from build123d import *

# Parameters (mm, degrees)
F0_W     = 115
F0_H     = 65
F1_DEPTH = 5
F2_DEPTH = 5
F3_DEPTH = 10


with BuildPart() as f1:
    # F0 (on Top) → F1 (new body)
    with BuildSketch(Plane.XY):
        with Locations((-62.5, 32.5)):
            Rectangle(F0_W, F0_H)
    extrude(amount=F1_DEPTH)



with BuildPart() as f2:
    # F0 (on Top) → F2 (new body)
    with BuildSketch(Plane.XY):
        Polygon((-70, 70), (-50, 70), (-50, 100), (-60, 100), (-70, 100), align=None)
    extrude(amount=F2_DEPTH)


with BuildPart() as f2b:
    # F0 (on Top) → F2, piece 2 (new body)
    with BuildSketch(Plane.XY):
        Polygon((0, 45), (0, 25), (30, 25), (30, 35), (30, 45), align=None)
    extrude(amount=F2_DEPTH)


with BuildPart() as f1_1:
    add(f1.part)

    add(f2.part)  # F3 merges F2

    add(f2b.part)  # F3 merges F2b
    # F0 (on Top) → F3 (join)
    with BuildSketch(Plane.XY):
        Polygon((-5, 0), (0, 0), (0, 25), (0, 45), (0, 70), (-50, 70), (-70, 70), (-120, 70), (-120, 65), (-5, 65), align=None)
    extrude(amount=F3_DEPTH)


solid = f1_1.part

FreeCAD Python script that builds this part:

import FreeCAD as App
import Part
import Sketcher

V = App.Vector


def add_polygon(sketch, points):
    """Adds a closed chain of lines whose ends are joined by coincident constraints."""
    first, n = sketch.GeometryCount, len(points)
    for a, b in zip(points, points[1:] + points[:1]):
        sketch.addGeometry(Part.LineSegment(App.Vector(*a, 0), App.Vector(*b, 0)), False)
    for i in range(n):
        sketch.addConstraint(Sketcher.Constraint("Coincident", first + i, 2, first + (i + 1) % n, 1))

doc = App.newDocument("Part")
body = doc.addObject("PartDesign::Body", "Body")

# Sketch on XY plane
sketch1 = body.newObject("Sketcher::SketchObject", "Sketch")
sketch1.AttachmentSupport = (doc.getObject("XY_Plane"), [""])
sketch1.MapMode = "FlatFace"
add_polygon(sketch1, [(-120, 65), (-120, 0), (-5, 0), (-5, 65)])  # lines 0-3
sketch1.addConstraint([
    Sketcher.Constraint("Vertical", 0),
    Sketcher.Constraint("Horizontal", 1),
    Sketcher.Constraint("Vertical", 2),
    Sketcher.Constraint("Horizontal", 3),
    Sketcher.Constraint("PointOnObject", 0, 2, -1),
    Sketcher.Constraint("DistanceX", 1, 1, 1, 2, 115.0),
    Sketcher.Constraint("DistanceY", 0, 2, 0, 1, 65.0),
    Sketcher.Constraint("DistanceX", 0, 2, -1, 1, 120.0),
])
pad1 = body.newObject("PartDesign::Pad", "Pad")
pad1.Profile = sketch1
pad1.Length = 5
body2 = doc.addObject("PartDesign::Body", "Body001")

# Sketch on XY plane
sketch2 = body2.newObject("Sketcher::SketchObject", "Sketch001")
sketch2.AttachmentSupport = (doc.getObject("XY_Plane001"), [""])
sketch2.MapMode = "FlatFace"
add_polygon(sketch2, [(-70, 70), (-50, 70), (-50, 100), (-70, 100)])  # lines 0-3
sketch2.addConstraint([
    Sketcher.Constraint("Horizontal", 0),
    Sketcher.Constraint("Vertical", 1),
    Sketcher.Constraint("Horizontal", 2),
    Sketcher.Constraint("Vertical", 3),
    Sketcher.Constraint("DistanceX", 0, 1, 0, 2, 20.0),
    Sketcher.Constraint("DistanceY", 1, 1, 1, 2, 30.0),
    Sketcher.Constraint("DistanceX", 0, 2, -1, 1, 50.0),
    Sketcher.Constraint("DistanceY", -1, 1, 0, 2, 70.0),
])
pad2 = body2.newObject("PartDesign::Pad", "Pad001")
pad2.Profile = sketch2
pad2.Length = 5
body3 = doc.addObject("PartDesign::Body", "Body002")

# Sketch on XY plane
sketch3 = body3.newObject("Sketcher::SketchObject", "Sketch002")
sketch3.AttachmentSupport = (doc.getObject("XY_Plane002"), [""])
sketch3.MapMode = "FlatFace"
add_polygon(sketch3, [(0, 45), (0, 25), (30, 25), (30, 45)])  # lines 0-3
sketch3.addConstraint([
    Sketcher.Constraint("Vertical", 0),
    Sketcher.Constraint("Horizontal", 1),
    Sketcher.Constraint("Vertical", 2),
    Sketcher.Constraint("Horizontal", 3),
    Sketcher.Constraint("PointOnObject", 0, 2, -2),
    Sketcher.Constraint("DistanceX", 1, 1, 1, 2, 30.0),
    Sketcher.Constraint("DistanceY", 0, 2, 0, 1, 20.0),
    Sketcher.Constraint("DistanceY", -1, 1, 0, 2, 25.0),
])
pad3 = body3.newObject("PartDesign::Pad", "Pad002")
pad3.Profile = sketch3
pad3.Length = 5
body.AllowCompound = True
doc.recompute()

boolean = body.newObject("PartDesign::Boolean", "Boolean")
boolean.Type = "Fuse"
boolean.addObjects([body2])
doc.recompute()

boolean2 = body.newObject("PartDesign::Boolean", "Boolean001")
boolean2.Type = "Fuse"
boolean2.addObjects([body3])

# Sketch on XY plane
sketch4 = body.newObject("Sketcher::SketchObject", "Sketch003")
sketch4.AttachmentSupport = (doc.getObject("XY_Plane"), [""])
sketch4.MapMode = "FlatFace"
add_polygon(sketch4, [(-5, 0), (0, 0), (0, 70), (-120, 70), (-120, 65), (-5, 65)])  # lines 0-5
sketch4.addConstraint([
    Sketcher.Constraint("Horizontal", 0),
    Sketcher.Constraint("Vertical", 1),
    Sketcher.Constraint("Horizontal", 2),
    Sketcher.Constraint("Vertical", 3),
    Sketcher.Constraint("Horizontal", 4),
    Sketcher.Constraint("Vertical", 5),
    Sketcher.Constraint("Coincident", 0, 2, -1, 1),
    Sketcher.Constraint("Equal", 0, 3),
    Sketcher.Constraint("DistanceX", 0, 1, 0, 2, 5.0),
    Sketcher.Constraint("DistanceX", 2, 2, 2, 1, 120.0),
    Sketcher.Constraint("DistanceY", 1, 1, 1, 2, 70.0),
])
pad4 = body.newObject("PartDesign::Pad", "Pad003")
pad4.Profile = sketch4
pad4.Length = 10

doc.recompute()
